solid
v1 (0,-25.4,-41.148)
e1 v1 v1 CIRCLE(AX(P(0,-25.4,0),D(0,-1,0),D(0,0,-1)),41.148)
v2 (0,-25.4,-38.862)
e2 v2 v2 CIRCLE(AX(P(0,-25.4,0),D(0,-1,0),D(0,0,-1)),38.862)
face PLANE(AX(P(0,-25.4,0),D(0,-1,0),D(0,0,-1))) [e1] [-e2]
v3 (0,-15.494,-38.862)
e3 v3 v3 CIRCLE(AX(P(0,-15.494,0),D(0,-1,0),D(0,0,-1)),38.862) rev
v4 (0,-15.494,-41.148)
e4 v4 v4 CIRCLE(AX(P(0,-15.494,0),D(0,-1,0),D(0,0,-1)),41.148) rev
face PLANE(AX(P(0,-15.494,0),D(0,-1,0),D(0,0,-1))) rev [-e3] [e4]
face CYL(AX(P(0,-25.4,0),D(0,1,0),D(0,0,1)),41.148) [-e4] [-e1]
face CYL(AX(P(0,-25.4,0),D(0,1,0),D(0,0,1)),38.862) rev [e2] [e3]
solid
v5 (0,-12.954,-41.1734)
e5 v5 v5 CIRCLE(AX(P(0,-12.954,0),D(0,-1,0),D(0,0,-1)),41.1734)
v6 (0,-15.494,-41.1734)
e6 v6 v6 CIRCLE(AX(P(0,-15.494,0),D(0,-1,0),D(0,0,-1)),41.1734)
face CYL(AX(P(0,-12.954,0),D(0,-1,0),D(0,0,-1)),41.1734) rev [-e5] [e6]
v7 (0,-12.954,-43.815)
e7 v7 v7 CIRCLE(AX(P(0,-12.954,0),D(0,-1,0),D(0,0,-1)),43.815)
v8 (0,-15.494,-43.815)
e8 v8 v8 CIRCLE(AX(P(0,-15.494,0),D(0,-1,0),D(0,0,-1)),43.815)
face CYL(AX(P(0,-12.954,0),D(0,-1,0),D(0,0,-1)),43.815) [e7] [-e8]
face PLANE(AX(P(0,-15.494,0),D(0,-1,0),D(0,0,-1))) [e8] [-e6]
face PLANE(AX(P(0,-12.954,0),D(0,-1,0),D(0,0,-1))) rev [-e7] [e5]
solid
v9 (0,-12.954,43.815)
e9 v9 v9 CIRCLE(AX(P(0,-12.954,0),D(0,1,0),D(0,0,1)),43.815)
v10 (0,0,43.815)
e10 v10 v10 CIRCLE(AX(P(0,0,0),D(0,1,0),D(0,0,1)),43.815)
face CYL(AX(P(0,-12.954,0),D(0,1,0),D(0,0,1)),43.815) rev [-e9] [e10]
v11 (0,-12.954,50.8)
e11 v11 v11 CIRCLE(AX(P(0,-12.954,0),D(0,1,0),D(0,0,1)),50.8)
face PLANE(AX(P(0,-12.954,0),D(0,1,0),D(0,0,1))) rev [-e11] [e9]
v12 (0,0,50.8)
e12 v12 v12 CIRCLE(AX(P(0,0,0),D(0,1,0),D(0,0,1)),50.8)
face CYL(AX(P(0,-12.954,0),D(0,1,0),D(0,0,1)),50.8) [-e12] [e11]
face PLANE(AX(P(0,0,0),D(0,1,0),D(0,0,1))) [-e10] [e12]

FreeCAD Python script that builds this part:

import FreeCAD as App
import Part
import Sketcher
Q = App.Units.Quantity

doc = App.newDocument("Part")
body = doc.addObject("PartDesign::Body", "Body")

# Sketch on XZ plane
sketch1 = doc.addObject("Sketcher::SketchObject", "Sketch")
body.addObject(sketch1)
sketch1.AttachmentSupport = (doc.XZ_Plane, [""])
sketch1.MapMode = "FlatFace"
sketch1.addGeometry(Part.Circle(App.Vector(0, 0, 0), App.Vector(0, 0, 1), 51), False)
sketch1.addGeometry(Part.Circle(App.Vector(0, 0, 0), App.Vector(0, 0, 1), 44), False)
sketch1.addConstraint(Sketcher.Constraint("Coincident", 0, 3, -1, 1))
sketch1.addConstraint(Sketcher.Constraint("Coincident", 1, 3, -1, 1))
sketch1.addConstraint(Sketcher.Constraint("Diameter", 0, Q("4 in")))
sketch1.addConstraint(Sketcher.Constraint("Diameter", 1, Q("3.45 in")))
pad1 = doc.addObject("PartDesign::Pad", "Pad")
body.addObject(pad1)
pad1.Profile = sketch1
pad1.Length = Q("0.51 in")
body2 = doc.addObject("PartDesign::Body", "Body001")

# Sketch on XZ plane
sketch2 = doc.addObject("Sketcher::SketchObject", "Sketch001")
body2.addObject(sketch2)
sketch2.AttachmentSupport = (doc.getObject("XZ_Plane001"), [""])
sketch2.MapMode = "FlatFace"
sketch2.AttachmentOffset = App.Placement(App.Vector(0, 0, 0.61 * 25.4), App.Rotation())
sketch2.addGeometry(Part.Circle(App.Vector(0, 0, 0), App.Vector(0, 0, 1), 44), False)
sketch2.addGeometry(Part.Circle(App.Vector(0, 0, 0), App.Vector(0, 0, 1), 41), False)
sketch2.addConstraint(Sketcher.Constraint("Coincident", 0, 3, -1, 1))
sketch2.addConstraint(Sketcher.Constraint("Coincident", 1, 3, -1, 1))
sketch2.addConstraint(Sketcher.Constraint("Diameter", 0, Q("3.45 in")))
sketch2.addConstraint(Sketcher.Constraint("Diameter", 1, Q("3.242 in")))
pad2 = doc.addObject("PartDesign::Pad", "Pad001")
body2.addObject(pad2)
pad2.Profile = sketch2
pad2.Length = Q("0.1 in")
pad2.Reversed = True
body3 = doc.addObject("PartDesign::Body", "Body002")

# Sketch on XZ plane
sketch3 = doc.addObject("Sketcher::SketchObject", "Sketch002")
body3.addObject(sketch3)
sketch3.AttachmentSupport = (doc.getObject("XZ_Plane002"), [""])
sketch3.MapMode = "FlatFace"
sketch3.AttachmentOffset = App.Placement(App.Vector(0, 0, 0.71 * 25.4), App.Rotation())
sketch3.addGeometry(Part.Circle(App.Vector(0, 0, 0), App.Vector(0, 0, 1), 41), False)
sketch3.addGeometry(Part.Circle(App.Vector(0, 0, 0), App.Vector(0, 0, 1), 39), False)
sketch3.addConstraint(Sketcher.Constraint("Coincident", 0, 3, -1, 1))
sketch3.addConstraint(Sketcher.Constraint("Coincident", 1, 3, -1, 1))
sketch3.addConstraint(Sketcher.Constraint("Diameter", 0, Q("3.24 in")))
sketch3.addConstraint(Sketcher.Constraint("Diameter", 1, Q("3.06 in")))
pad3 = doc.addObject("PartDesign::Pad", "Pad002")
body3.addObject(pad3)
pad3.Profile = sketch3
pad3.Type = "TwoLengths"
pad3.Length = Q("0.29 in")
pad3.Length2 = Q("0.1 in")

doc.recompute()
